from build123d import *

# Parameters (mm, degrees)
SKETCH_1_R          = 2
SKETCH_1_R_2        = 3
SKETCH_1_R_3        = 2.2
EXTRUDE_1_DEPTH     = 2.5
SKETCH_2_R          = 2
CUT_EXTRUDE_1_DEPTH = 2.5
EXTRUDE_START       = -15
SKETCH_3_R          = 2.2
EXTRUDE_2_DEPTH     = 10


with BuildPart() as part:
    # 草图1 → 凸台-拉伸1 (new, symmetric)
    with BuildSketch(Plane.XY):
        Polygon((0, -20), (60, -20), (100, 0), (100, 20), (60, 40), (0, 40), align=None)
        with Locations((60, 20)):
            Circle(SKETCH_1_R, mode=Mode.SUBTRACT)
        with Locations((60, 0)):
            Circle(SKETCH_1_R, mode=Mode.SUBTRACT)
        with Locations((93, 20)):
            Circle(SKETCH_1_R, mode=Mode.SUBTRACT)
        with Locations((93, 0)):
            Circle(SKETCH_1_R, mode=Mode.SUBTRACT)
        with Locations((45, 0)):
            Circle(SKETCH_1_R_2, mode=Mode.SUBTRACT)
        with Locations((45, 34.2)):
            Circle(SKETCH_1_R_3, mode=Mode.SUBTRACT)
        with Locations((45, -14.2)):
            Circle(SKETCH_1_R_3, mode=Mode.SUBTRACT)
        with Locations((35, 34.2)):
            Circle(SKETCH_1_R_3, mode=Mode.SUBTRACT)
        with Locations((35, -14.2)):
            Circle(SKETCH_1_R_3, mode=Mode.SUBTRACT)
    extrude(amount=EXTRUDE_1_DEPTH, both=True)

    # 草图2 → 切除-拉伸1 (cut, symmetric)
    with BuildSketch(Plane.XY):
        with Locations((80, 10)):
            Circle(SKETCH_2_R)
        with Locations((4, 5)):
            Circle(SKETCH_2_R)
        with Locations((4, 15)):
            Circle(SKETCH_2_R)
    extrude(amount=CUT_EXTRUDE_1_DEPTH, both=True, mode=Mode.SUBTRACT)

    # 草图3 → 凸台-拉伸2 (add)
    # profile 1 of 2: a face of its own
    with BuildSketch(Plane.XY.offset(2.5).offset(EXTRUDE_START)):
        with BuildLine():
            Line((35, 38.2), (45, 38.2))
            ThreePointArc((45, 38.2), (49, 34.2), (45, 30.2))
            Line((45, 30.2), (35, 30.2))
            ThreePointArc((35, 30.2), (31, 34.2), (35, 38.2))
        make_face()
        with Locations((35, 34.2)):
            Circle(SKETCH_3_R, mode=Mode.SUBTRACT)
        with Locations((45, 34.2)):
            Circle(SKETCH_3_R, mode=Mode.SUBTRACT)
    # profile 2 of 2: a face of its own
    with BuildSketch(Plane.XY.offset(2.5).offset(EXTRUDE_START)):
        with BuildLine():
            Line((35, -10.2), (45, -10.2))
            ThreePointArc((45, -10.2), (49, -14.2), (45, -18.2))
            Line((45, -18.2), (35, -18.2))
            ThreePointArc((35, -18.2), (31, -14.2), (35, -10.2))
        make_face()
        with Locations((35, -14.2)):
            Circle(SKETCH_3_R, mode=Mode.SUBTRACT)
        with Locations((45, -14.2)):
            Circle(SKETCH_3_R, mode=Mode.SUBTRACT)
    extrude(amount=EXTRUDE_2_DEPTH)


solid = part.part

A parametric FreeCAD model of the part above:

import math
import FreeCAD as App
import Part
import Sketcher
from FreeCAD import Vector


def add_polygon(sketch, points):
    """Adds a closed chain of lines whose ends are joined by coincident constraints."""
    first, n = sketch.GeometryCount, len(points)
    for a, b in zip(points, points[1:] + points[:1]):
        sketch.addGeometry(Part.LineSegment(App.Vector(*a, 0), App.Vector(*b, 0)), False)
    for i in range(n):
        sketch.addConstraint(Sketcher.Constraint("Coincident", first + i, 2, first + (i + 1) % n, 1))

doc = App.newDocument("Part")
body = doc.addObject("PartDesign::Body", "Body")

sketch1 = body.newObject("Sketcher::SketchObject", "Sketch")
sketch1.AttachmentSupport = (doc.getObject("XY_Plane"), [""])
sketch1.MapMode = "FlatFace"
add_polygon(sketch1, [(0, -20), (60, -20), (100, 0), (100, 20), (60, 40), (0, 40)])
sketch1.addGeometry(Part.Circle(Vector(35, -14.2, 0), Vector(0, 0, 1), 2.2), False)
sketch1.addGeometry(Part.Circle(Vector(45, -14.2, 0), Vector(0, 0, 1), 2.2), False)
sketch1.addGeometry(Part.Circle(Vector(45, 0, 0), Vector(0, 0, 1), 3), False)
sketch1.addGeometry(Part.Circle(Vector(60, 0, 0), Vector(0, 0, 1), 2), False)
sketch1.addGeometry(Part.Circle(Vector(93, 0, 0), Vector(0, 0, 1), 2), False)
sketch1.addGeometry(Part.Circle(Vector(60, 20, 0), Vector(0, 0, 1), 2), False)
sketch1.addGeometry(Part.Circle(Vector(35, 34.2, 0), Vector(0, 0, 1), 2.2), False)
sketch1.addGeometry(Part.Circle(Vector(45, 34.2, 0), Vector(0, 0, 1), 2.2), False)
sketch1.addGeometry(Part.Circle(Vector(93, 20, 0), Vector(0, 0, 1), 2), False)
sketch1.addConstraint(Sketcher.Constraint("Horizontal", 0))
sketch1.addConstraint(Sketcher.Constraint("Vertical", 2))
sketch1.addConstraint(Sketcher.Constraint("Horizontal", 4))
sketch1.addConstraint(Sketcher.Constraint("Vertical", 5))
sketch1.addConstraint(Sketcher.Constraint("Equal", 6, 7))
sketch1.addConstraint(Sketcher.Constraint("Equal", 9, 10))
sketch1.addConstraint(Sketcher.Constraint("Equal", 10, 11))
sketch1.addConstraint(Sketcher.Constraint("Equal", 7, 12))
sketch1.addConstraint(Sketcher.Constraint("Equal", 12, 13))
sketch1.addConstraint(Sketcher.Constraint("Equal", 11, 14))
sketch1.addConstraint(Sketcher.Constraint("PointOnObject", 8, 3, -1))
sketch1.addConstraint(Sketcher.Constraint("PointOnObject", 9, 3, -1))
sketch1.addConstraint(Sketcher.Constraint("PointOnObject", 10, 3, -1))
sketch1.addConstraint(Sketcher.Constraint("PointOnObject", 1, 2, -1))
sketch1.addConstraint(Sketcher.Constraint("PointOnObject", 4, 2, -2))
sketch1.addConstraint(Sketcher.Constraint("Horizontal", 6, 3, 7, 3))
sketch1.addConstraint(Sketcher.Constraint("Horizontal", 12, 3, 13, 3))
sketch1.addConstraint(Sketcher.Constraint("Horizontal", 11, 3, 14, 3))
sketch1.addConstraint(Sketcher.Constraint("Horizontal", 14, 3, 2, 2))
sketch1.addConstraint(Sketcher.Constraint("Vertical", 7, 3, 8, 3))
sketch1.addConstraint(Sketcher.Constraint("Vertical", 9, 3, 11, 3))
sketch1.addConstraint(Sketcher.Constraint("Vertical", 6, 3, 12, 3))
sketch1.addConstraint(Sketcher.Constraint("Vertical", 8, 3, 13, 3))
sketch1.addConstraint(Sketcher.Constraint("Vertical", 10, 3, 14, 3))
sketch1.addConstraint(Sketcher.Constraint("Vertical", 11, 3, 0, 2))
sketch1.addConstraint(Sketcher.Constraint("Vertical", 0, 2, 3, 2))
sketch1.addConstraint(Sketcher.Constraint("Equal", 4, 5))
sketch1.addConstraint(Sketcher.Constraint("Equal", 1, 3))
sketch1.addConstraint(Sketcher.Constraint("Diameter", 8, 6.0))
sketch1.addConstraint(Sketcher.Constraint("Diameter", 9, 4.0))
sketch1.addConstraint(Sketcher.Constraint("Diameter", 6, 4.4))
sketch1.addConstraint(Sketcher.Constraint("DistanceX", 0, 1, 0, 2, 60.0))
sketch1.addConstraint(Sketcher.Constraint("DistanceY", 2, 1, 2, 2, 20.0))
sketch1.addConstraint(Sketcher.Constraint("DistanceX", -1, 1, 6, 3, 35.0))
sketch1.addConstraint(Sketcher.Constraint("DistanceX", -1, 1, 7, 3, 45.0))
sketch1.addConstraint(Sketcher.Constraint("DistanceX", -1, 1, 10, 3, 93.0))
sketch1.addConstraint(Sketcher.Constraint("DistanceX", -1, 1, 1, 2, 100.0))
sketch1.addConstraint(Sketcher.Constraint("DistanceY", 6, 3, -1, 1, 14.2))
sketch1.addConstraint(Sketcher.Constraint("DistanceY", -1, 1, 12, 3, 34.2))
pad1 = body.newObject("PartDesign::Pad", "Pad")
pad1.Profile = sketch1
pad1.Length = 5
pad1.Midplane = True

sketch2 = body.newObject("Sketcher::SketchObject", "Sketch001")
sketch2.AttachmentSupport = (doc.getObject("XY_Plane"), [""])
sketch2.MapMode = "FlatFace"
sketch2.addGeometry(Part.Circle(Vector(80, 10, 0), Vector(0, 0, 1), 2), False)
sketch2.addGeometry(Part.Circle(Vector(4, 5, 0), Vector(0, 0, 1), 2), False)
sketch2.addGeometry(Part.Circle(Vector(4, 15, 0), Vector(0, 0, 1), 2), False)
sketch2.addConstraint(Sketcher.Constraint("Equal", 0, 1))
sketch2.addConstraint(Sketcher.Constraint("Equal", 1, 2))
sketch2.addConstraint(Sketcher.Constraint("Vertical", 1, 3, 2, 3))
sketch2.addConstraint(Sketcher.Constraint("Diameter", 0, 4.0))
sketch2.addConstraint(Sketcher.Constraint("DistanceX", -1, 1, 0, 3, 80.0))
sketch2.addConstraint(Sketcher.Constraint("DistanceY", -1, 1, 0, 3, 10.0))
sketch2.addConstraint(Sketcher.Constraint("DistanceX", -1, 1, 1, 3, 4.0))
sketch2.addConstraint(Sketcher.Constraint("DistanceY", -1, 1, 1, 3, 5.0))
sketch2.addConstraint(Sketcher.Constraint("DistanceY", -1, 1, 2, 3, 15.0))
pocket1 = body.newObject("PartDesign::Pocket", "Pocket")
pocket1.Profile = sketch2
pocket1.Length = 5
pocket1.Midplane = True

sketch3 = body.newObject("Sketcher::SketchObject", "Sketch002")
sketch3.AttachmentSupport = (doc.getObject("XY_Plane"), [""])
sketch3.MapMode = "FlatFace"
sketch3.AttachmentOffset = App.Placement(Vector(0, 0, -12.5), App.Rotation())
sketch3.addGeometry(Part.LineSegment(Vector(45, 38.2, 0), Vector(35, 38.2, 0)), False)
sketch3.addGeometry(Part.ArcOfCircle(Part.Circle(Vector(35, 34.2, 0), Vector(0, 0, 1), 4), math.radians(90), math.radians(270)), False)
sketch3.addGeometry(Part.LineSegment(Vector(35, 30.2, 0), Vector(45, 30.2, 0)), False)
sketch3.addGeometry(Part.ArcOfCircle(Part.Circle(Vector(45, 34.2, 0), Vector(0, 0, 1), 4), math.radians(-90), math.radians(90)), False)
sketch3.addGeometry(Part.Circle(Vector(45, 34.2, 0), Vector(0, 0, 1), 2.2), False)
sketch3.addGeometry(Part.Circle(Vector(35, 34.2, 0), Vector(0, 0, 1), 2.2), False)
sketch3.addGeometry(Part.LineSegment(Vector(45, -10.2, 0), Vector(35, -10.2, 0)), False)
sketch3.addGeometry(Part.ArcOfCircle(Part.Circle(Vector(35, -14.2, 0), Vector(0, 0, 1), 4), math.radians(90), math.radians(270)), False)
sketch3.addGeometry(Part.LineSegment(Vector(35, -18.2, 0), Vector(45, -18.2, 0)), False)
sketch3.addGeometry(Part.ArcOfCircle(Part.Circle(Vector(45, -14.2, 0), Vector(0, 0, 1), 4), math.radians(-90), math.radians(90)), False)
sketch3.addGeometry(Part.Circle(Vector(45, -14.2, 0), Vector(0, 0, 1), 2.2), False)
sketch3.addGeometry(Part.Circle(Vector(35, -14.2, 0), Vector(0, 0, 1), 2.2), False)
sketch3.addConstraint(Sketcher.Constraint("Tangent", 0, 2, 1, 1))
sketch3.addConstraint(Sketcher.Constraint("Tangent", 1, 2, 2, 1))
sketch3.addConstraint(Sketcher.Constraint("Tangent", 2, 2, 3, 1))
sketch3.addConstraint(Sketcher.Constraint("Tangent", 3, 2, 0, 1))
sketch3.addConstraint(Sketcher.Constraint("Tangent", 6, 2, 7, 1))
sketch3.addConstraint(Sketcher.Constraint("Tangent", 7, 2, 8, 1))
sketch3.addConstraint(Sketcher.Constraint("Tangent", 8, 2, 9, 1))
sketch3.addConstraint(Sketcher.Constraint("Tangent", 9, 2, 6, 1))
sketch3.addConstraint(Sketcher.Constraint("Horizontal", 0))
sketch3.addConstraint(Sketcher.Constraint("Horizontal", 2))
sketch3.addConstraint(Sketcher.Constraint("Horizontal", 6))
sketch3.addConstraint(Sketcher.Constraint("Horizontal", 8))
sketch3.addConstraint(Sketcher.Constraint("Coincident", 4, 3, 3, 3))
sketch3.addConstraint(Sketcher.Constraint("Coincident", 5, 3, 1, 3))
sketch3.addConstraint(Sketcher.Constraint("Coincident", 10, 3, 9, 3))
sketch3.addConstraint(Sketcher.Constraint("Coincident", 11, 3, 7, 3))
sketch3.addConstraint(Sketcher.Constraint("Equal", 4, 5))
sketch3.addConstraint(Sketcher.Constraint("Equal", 3, 7))
sketch3.addConstraint(Sketcher.Constraint("Equal", 5, 10))
sketch3.addConstraint(Sketcher.Constraint("Equal", 10, 11))
sketch3.addConstraint(Sketcher.Constraint("Vertical", 5, 3, 7, 3))
sketch3.addConstraint(Sketcher.Constraint("Vertical", 4, 3, 9, 3))
sketch3.addConstraint(Sketcher.Constraint("Radius", 1, 4.0))
sketch3.addConstraint(Sketcher.Constraint("Diameter", 4, 4.4))
sketch3.addConstraint(Sketcher.Constraint("DistanceX", 0, 2, 0, 1, 10.0))
sketch3.addConstraint(Sketcher.Constraint("DistanceX", -1, 1, 1, 3, 35.0))
sketch3.addConstraint(Sketcher.Constraint("DistanceY", -1, 1, 1, 3, 34.2))
sketch3.addConstraint(Sketcher.Constraint("DistanceY", 7, 3, -1, 1, 14.2))
pad2 = body.newObject("PartDesign::Pad", "Pad001")
pad2.Profile = sketch3
pad2.Length = 10

doc.recompute()
